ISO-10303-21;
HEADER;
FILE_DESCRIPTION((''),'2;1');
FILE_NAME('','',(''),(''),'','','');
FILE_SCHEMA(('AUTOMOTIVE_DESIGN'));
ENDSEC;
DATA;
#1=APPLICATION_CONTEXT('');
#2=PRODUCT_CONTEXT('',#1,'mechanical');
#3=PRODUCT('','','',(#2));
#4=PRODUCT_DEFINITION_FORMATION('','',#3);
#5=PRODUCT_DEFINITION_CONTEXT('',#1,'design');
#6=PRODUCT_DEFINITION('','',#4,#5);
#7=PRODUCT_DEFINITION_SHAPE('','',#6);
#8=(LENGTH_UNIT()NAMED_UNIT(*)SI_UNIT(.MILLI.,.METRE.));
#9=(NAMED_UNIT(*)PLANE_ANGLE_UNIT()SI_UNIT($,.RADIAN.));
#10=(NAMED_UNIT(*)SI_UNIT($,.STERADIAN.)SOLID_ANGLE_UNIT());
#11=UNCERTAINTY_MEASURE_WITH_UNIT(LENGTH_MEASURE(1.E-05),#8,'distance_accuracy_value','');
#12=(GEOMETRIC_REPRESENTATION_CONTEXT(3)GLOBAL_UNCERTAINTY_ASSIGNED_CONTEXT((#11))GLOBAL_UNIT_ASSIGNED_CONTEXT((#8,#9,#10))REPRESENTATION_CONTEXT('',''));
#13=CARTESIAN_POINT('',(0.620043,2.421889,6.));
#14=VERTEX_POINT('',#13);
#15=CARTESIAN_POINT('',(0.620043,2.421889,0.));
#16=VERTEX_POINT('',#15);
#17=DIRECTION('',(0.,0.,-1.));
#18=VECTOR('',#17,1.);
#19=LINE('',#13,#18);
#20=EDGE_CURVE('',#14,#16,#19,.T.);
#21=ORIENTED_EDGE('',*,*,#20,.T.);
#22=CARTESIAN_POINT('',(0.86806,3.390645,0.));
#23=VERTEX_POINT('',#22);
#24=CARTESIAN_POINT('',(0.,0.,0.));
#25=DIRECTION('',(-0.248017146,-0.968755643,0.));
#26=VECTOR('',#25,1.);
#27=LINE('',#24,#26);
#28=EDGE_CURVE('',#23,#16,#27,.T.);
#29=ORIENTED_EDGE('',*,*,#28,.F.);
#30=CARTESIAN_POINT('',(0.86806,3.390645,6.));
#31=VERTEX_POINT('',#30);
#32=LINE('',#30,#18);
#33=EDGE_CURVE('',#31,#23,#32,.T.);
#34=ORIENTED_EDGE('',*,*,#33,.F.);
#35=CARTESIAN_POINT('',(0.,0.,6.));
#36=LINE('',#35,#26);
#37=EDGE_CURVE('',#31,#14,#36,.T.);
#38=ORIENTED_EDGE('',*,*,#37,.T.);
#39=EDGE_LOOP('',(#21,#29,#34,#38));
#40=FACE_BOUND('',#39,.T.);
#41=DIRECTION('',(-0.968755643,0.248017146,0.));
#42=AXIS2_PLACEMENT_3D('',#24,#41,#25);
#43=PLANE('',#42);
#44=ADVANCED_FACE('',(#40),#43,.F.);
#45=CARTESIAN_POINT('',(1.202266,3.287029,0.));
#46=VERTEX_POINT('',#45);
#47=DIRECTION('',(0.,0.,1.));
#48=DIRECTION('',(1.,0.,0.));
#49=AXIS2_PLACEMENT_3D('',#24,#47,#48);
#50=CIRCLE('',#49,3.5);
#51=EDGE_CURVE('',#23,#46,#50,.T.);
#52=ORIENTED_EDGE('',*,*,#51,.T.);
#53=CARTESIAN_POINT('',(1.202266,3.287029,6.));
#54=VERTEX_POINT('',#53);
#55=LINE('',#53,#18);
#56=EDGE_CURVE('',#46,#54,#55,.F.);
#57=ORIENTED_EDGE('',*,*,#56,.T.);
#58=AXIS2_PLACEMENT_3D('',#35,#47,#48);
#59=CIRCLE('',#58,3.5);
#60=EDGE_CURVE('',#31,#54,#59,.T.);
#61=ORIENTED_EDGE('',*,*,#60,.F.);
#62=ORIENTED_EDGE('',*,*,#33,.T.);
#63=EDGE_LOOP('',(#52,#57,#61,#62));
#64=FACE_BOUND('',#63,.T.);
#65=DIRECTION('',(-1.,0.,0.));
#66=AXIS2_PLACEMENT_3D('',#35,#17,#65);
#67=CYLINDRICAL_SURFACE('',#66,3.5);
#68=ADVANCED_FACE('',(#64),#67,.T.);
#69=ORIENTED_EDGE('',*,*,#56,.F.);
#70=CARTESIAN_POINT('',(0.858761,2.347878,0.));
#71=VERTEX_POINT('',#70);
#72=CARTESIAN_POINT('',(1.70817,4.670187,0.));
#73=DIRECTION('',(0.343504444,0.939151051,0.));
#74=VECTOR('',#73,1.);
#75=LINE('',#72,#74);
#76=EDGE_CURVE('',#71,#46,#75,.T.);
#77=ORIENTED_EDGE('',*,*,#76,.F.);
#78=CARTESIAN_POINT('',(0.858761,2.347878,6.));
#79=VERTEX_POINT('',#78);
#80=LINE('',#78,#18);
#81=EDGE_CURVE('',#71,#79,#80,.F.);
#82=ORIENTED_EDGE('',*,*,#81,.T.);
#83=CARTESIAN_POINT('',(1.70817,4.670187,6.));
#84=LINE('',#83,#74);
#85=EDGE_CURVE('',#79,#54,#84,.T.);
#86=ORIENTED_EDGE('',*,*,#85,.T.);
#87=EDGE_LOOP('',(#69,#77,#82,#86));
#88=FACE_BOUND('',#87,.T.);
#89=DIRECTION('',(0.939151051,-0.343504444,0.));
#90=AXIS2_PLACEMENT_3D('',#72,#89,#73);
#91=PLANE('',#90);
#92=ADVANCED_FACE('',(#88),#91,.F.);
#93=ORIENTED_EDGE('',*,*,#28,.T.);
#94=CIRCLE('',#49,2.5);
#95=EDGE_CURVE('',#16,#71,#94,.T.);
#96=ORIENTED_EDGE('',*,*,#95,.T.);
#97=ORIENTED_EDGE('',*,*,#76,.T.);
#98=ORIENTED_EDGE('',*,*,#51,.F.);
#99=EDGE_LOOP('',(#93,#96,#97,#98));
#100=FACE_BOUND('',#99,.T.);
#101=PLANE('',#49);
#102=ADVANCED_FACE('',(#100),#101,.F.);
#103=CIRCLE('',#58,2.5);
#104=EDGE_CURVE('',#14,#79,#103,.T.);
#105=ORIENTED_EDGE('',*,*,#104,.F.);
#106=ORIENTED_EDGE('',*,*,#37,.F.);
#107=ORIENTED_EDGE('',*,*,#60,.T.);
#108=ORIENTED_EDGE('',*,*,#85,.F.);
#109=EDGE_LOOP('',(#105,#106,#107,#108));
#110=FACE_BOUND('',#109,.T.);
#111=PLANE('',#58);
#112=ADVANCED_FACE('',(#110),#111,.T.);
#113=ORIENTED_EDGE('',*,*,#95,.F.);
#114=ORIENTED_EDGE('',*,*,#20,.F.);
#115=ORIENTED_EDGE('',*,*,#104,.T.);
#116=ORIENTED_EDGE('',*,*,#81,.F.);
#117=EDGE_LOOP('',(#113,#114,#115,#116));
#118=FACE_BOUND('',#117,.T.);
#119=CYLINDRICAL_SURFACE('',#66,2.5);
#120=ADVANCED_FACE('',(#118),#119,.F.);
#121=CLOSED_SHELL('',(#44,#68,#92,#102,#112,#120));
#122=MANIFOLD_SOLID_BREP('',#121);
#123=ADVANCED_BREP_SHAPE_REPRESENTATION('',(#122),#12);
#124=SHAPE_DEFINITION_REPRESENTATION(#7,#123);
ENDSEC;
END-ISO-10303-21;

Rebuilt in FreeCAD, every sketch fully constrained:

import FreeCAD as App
import Part
import Sketcher


def add_polygon(sketch, points):
    """Adds a closed chain of lines whose ends are joined by coincident constraints."""
    first, n = sketch.GeometryCount, len(points)
    for a, b in zip(points, points[1:] + points[:1]):
        sketch.addGeometry(Part.LineSegment(App.Vector(*a, 0), App.Vector(*b, 0)), False)
    for i in range(n):
        sketch.addConstraint(Sketcher.Constraint("Coincident", first + i, 2, first + (i + 1) % n, 1))

doc = App.newDocument("Part")
body = doc.addObject("PartDesign::Body", "Body")

sketch1 = body.newObject("Sketcher::SketchObject", "Sketch")
sketch1.AttachmentSupport = (doc.getObject("XY_Plane"), [""])
sketch1.MapMode = "FlatFace"
sketch1.addGeometry([
    Part.Circle(App.Vector(0, 0, 0), App.Vector(0, 0, 1), 3.5),
    Part.Circle(App.Vector(0, 0, 0), App.Vector(0, 0, 1), 2.5),
], False)
sketch1.addConstraint([
    Sketcher.Constraint("Coincident", 0, 3, -1, 1),
    Sketcher.Constraint("Coincident", 1, 3, -1, 1),
    Sketcher.Constraint("Diameter", 0, 7.0),
    Sketcher.Constraint("Diameter", 1, 5.0),
])
pad1 = body.newObject("PartDesign::Pad", "Pad")
pad1.Profile = sketch1
pad1.Length = 6

sketch2 = body.newObject("Sketcher::SketchObject", "Sketch001")
sketch2.AttachmentSupport = (doc.getObject("XY_Plane"), [""])
sketch2.MapMode = "FlatFace"
sketch2.AttachmentOffset = App.Placement(App.Vector(0, 0, 6), App.Rotation())
add_polygon(sketch2, [(1.2, 4.7), (0, 0), (1.7, 4.7)])
sketch2.addConstraint([
    Sketcher.Constraint("Horizontal", 2),
    Sketcher.Constraint("Coincident", 0, 2, -1, 1),
    Sketcher.Constraint("Distance", 0, 4.82081),
    Sketcher.Constraint("DistanceX", 2, 2, 2, 1, 0.512527),
    Sketcher.Constraint("DistanceX", -1, 1, 1, 2, 1.70817),
])
pocket1 = body.newObject("PartDesign::Pocket", "Pocket")
pocket1.Profile = sketch2
pocket1.Length = 6

doc.recompute()
